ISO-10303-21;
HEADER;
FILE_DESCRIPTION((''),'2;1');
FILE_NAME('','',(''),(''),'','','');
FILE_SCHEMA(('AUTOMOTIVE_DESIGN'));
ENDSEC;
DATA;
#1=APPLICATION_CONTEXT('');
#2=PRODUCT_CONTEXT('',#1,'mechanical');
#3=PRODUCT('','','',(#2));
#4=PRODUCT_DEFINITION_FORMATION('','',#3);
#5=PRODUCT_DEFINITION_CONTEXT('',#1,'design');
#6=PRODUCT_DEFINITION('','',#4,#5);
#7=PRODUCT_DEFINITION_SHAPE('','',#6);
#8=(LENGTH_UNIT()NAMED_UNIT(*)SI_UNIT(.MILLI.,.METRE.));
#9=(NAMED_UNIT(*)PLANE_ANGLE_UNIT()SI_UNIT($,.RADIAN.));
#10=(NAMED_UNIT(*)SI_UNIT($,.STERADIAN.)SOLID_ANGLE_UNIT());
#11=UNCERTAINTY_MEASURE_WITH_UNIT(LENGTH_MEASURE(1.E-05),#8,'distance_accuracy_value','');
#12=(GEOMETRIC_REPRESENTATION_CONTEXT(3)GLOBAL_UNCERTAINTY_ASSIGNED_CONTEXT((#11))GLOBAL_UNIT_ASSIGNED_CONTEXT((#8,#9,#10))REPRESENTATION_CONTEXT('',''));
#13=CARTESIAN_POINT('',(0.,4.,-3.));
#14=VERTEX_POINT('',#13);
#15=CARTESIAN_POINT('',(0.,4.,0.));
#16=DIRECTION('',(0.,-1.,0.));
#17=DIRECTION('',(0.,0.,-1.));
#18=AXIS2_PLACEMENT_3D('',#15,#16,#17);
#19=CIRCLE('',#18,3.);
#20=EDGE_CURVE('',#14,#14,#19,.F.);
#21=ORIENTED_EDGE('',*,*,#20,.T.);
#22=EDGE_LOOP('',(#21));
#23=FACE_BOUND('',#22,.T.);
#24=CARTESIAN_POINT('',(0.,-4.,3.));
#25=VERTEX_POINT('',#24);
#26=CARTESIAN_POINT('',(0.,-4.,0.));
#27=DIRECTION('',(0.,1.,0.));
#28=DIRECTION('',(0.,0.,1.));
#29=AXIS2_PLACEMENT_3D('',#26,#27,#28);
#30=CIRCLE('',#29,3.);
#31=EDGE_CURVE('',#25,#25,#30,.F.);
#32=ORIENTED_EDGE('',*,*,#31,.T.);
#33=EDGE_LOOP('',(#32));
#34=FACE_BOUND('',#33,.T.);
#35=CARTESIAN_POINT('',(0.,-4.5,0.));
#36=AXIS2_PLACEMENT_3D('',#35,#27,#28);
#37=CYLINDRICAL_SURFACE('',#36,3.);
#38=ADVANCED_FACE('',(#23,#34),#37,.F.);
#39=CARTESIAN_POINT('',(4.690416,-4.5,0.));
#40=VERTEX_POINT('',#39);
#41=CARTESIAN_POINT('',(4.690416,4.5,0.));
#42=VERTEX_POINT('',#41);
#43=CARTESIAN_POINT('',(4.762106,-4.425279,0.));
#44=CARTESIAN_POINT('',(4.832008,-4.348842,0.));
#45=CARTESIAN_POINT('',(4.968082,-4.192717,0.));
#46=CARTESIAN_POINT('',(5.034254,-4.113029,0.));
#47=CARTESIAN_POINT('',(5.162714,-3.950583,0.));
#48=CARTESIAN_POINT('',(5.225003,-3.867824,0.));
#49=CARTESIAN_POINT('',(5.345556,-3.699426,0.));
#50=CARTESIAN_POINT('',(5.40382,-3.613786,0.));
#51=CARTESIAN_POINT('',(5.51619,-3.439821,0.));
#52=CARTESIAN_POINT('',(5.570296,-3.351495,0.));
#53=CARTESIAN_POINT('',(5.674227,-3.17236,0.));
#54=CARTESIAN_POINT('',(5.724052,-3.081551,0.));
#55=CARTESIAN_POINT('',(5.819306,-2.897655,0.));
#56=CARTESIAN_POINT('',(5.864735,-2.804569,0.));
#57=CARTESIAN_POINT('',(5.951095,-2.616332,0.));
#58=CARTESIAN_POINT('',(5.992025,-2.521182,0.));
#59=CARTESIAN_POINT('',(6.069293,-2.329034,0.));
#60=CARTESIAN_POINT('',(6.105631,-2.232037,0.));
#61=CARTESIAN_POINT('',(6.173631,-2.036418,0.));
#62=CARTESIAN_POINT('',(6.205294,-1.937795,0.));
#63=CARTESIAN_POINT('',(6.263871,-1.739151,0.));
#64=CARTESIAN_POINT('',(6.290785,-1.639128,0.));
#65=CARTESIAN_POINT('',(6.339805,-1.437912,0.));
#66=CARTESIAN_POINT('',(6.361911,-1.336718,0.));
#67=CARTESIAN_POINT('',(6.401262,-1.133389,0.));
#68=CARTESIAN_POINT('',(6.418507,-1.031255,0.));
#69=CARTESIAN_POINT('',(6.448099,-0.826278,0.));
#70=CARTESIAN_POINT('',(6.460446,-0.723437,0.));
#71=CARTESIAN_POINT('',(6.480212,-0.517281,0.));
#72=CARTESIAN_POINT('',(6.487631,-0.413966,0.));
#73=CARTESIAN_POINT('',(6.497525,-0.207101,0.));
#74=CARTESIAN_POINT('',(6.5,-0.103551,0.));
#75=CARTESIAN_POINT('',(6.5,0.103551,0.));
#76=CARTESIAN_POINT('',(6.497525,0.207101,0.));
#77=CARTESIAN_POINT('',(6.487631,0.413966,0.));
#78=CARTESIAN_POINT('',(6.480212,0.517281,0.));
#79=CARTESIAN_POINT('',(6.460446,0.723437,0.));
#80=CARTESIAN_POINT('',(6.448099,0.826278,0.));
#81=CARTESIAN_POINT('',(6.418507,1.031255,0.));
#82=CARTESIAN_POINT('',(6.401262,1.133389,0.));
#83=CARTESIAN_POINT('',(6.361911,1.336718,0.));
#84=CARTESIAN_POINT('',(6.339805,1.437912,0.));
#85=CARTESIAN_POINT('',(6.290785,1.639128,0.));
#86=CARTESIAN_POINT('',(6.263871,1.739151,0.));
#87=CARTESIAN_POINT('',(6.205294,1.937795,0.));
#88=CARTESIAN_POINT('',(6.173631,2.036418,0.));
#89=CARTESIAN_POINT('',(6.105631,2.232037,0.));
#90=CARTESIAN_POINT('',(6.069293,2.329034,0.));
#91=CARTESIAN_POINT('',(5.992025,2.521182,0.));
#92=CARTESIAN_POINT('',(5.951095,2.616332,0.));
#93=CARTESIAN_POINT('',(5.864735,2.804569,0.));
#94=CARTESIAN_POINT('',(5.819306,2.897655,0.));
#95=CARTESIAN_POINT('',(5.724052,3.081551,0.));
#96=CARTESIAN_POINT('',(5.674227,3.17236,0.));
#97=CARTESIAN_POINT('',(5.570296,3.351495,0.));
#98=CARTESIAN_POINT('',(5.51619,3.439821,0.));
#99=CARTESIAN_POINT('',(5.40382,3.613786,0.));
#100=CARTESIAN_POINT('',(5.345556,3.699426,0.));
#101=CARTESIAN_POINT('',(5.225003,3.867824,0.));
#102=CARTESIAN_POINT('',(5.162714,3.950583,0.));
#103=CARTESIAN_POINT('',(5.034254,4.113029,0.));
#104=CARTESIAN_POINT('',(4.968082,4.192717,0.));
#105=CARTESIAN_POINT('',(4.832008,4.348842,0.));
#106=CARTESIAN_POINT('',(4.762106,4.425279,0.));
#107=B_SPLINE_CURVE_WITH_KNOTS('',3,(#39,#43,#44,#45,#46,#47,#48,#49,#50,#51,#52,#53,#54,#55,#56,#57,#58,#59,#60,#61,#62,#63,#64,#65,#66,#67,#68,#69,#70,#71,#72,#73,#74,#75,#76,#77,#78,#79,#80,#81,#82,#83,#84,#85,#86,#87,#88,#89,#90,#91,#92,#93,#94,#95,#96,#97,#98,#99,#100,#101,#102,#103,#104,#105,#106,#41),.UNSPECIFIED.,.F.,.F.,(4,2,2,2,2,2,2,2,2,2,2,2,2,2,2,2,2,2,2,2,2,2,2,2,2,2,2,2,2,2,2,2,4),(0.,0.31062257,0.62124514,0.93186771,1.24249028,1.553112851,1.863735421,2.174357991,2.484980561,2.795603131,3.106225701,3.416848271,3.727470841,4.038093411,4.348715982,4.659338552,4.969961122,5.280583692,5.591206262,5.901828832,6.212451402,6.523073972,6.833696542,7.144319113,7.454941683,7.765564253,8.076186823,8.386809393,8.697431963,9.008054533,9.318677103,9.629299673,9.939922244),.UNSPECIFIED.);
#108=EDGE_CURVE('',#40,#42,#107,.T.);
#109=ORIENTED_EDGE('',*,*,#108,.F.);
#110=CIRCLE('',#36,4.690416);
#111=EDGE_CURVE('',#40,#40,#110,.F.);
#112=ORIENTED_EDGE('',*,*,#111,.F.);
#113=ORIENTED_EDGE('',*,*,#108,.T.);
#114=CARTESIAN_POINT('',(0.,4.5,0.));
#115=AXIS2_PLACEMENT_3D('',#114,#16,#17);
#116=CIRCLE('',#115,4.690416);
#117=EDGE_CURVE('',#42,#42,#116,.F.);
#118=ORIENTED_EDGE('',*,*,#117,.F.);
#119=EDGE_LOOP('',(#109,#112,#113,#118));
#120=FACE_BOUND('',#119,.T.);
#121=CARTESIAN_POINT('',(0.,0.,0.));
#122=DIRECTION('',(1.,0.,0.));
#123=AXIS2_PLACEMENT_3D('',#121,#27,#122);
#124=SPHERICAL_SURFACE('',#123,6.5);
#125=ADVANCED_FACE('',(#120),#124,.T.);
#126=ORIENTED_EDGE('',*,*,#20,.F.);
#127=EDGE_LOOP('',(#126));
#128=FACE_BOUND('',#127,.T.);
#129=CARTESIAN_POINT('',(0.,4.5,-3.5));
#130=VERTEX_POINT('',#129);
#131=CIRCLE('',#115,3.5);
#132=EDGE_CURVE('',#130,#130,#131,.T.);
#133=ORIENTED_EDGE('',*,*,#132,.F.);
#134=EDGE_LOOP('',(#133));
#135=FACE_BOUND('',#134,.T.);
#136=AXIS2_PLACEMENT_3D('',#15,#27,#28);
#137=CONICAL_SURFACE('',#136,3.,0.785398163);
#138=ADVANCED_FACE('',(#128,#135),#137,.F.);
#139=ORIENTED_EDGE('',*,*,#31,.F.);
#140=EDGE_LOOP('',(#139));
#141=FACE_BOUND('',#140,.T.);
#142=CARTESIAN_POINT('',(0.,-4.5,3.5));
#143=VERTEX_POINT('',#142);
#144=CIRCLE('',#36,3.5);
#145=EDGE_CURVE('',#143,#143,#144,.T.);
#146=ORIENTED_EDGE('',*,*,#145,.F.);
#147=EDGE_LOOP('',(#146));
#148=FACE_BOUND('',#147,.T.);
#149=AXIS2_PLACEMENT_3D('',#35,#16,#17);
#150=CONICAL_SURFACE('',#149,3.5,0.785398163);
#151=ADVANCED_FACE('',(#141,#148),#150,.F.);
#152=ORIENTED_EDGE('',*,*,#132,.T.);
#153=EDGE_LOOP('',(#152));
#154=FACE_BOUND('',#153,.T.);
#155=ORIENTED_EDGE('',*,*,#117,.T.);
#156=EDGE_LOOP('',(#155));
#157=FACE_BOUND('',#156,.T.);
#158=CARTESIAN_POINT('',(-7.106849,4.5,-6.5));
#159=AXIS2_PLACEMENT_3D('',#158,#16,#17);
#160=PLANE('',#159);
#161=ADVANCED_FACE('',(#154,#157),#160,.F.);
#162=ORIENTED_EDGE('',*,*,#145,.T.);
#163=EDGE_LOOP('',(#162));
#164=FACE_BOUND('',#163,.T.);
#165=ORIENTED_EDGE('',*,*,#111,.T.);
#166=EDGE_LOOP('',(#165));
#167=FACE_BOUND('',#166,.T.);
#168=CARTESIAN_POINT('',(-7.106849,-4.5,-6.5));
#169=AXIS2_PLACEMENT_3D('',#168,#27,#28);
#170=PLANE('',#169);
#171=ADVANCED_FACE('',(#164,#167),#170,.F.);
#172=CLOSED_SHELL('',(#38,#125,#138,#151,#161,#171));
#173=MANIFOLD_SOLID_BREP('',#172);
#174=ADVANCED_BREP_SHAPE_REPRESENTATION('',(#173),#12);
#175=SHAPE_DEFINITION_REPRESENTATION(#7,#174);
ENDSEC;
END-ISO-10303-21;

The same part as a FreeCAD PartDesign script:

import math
import FreeCAD as App
import Part
import Sketcher

V = App.Vector


def edges_at(feature, points):
    """Names of the edges that pass closest to the given points."""
    edges = feature.Shape.Edges
    near = lambda p: min(range(len(edges)), key=lambda i: edges[i].distToShape(Part.Vertex(*p))[0])
    return sorted({f"Edge{near(p) + 1}" for p in points})


def add_polygon(sketch, points):
    """Adds a closed chain of lines whose ends are joined by coincident constraints."""
    first, n = sketch.GeometryCount, len(points)
    for a, b in zip(points, points[1:] + points[:1]):
        sketch.addGeometry(Part.LineSegment(App.Vector(*a, 0), App.Vector(*b, 0)), False)
    for i in range(n):
        sketch.addConstraint(Sketcher.Constraint("Coincident", first + i, 2, first + (i + 1) % n, 1))

doc = App.newDocument("Part")
params = doc.addObject("Spreadsheet::Sheet", "Params")
for row, (alias, value) in enumerate([
    ("sketch1_radius", "6.5 mm"),
    ("revolution_angle", "360 deg"),
    ("sketch3_diameter", "6 mm"),
    ("chamfer_size", "0.5 mm"),
], start=1):
    params.set(f"A{row}", alias)
    params.set(f"B{row}", "=" + value)
    params.setAlias(f"B{row}", alias)

body = doc.addObject("PartDesign::Body", "Body")

sketch1 = doc.addObject("Sketcher::SketchObject", "Sketch")
body.addObject(sketch1)
sketch1.AttachmentSupport = (doc.XY_Plane, [""])
sketch1.MapMode = "FlatFace"
sketch1.addGeometry([
    Part.LineSegment(V(0, -6, 0), V(0, 6, 0)),
    Part.ArcOfCircle(Part.Circle(V(0, 0, 0), V(0, 0, 1), 6), math.radians(90), math.radians(270)),
], False)
sketch1.addConstraint([
    Sketcher.Constraint("Coincident", 0, 1, 1, 2),
    Sketcher.Constraint("Coincident", 1, 1, 0, 2),
    Sketcher.Constraint("Vertical", 0),
    Sketcher.Constraint("Coincident", 1, 3, -1, 1),
    Sketcher.Constraint("PointOnObject", 0, 1, -2),
    Sketcher.Constraint("Radius", 1, 6.5),
])
sketch1.setExpression("Constraints[5]", "Params.sketch1_radius")
revolution = doc.addObject("PartDesign::Revolution", "Revolution")
body.addObject(revolution)
revolution.Profile = sketch1
revolution.ReferenceAxis = (sketch1, ["V_Axis"])
revolution.setExpression("Angle", "Params.revolution_angle")

sketch2 = doc.addObject("Sketcher::SketchObject", "Sketch001")
body.addObject(sketch2)
sketch2.AttachmentSupport = (doc.XY_Plane, [""])
sketch2.MapMode = "FlatFace"
add_polygon(sketch2, [(-7.1, 6.9), (-7.1, 4.5), (7.5, 4.5), (7.5, 6.9)])
add_polygon(sketch2, [(-7.1, -4.5), (-7.1, -7.1), (7.5, -7.1), (7.5, -4.5)])
sketch2.addConstraint([
    Sketcher.Constraint("Vertical", 0),
    Sketcher.Constraint("Horizontal", 1),
    Sketcher.Constraint("Vertical", 2),
    Sketcher.Constraint("Horizontal", 3),
    Sketcher.Constraint("Vertical", 4),
    Sketcher.Constraint("Horizontal", 5),
    Sketcher.Constraint("Vertical", 6),
    Sketcher.Constraint("Horizontal", 7),
    Sketcher.Constraint("Symmetric", 1, 2, 6, 2, -1),
    Sketcher.Constraint("Vertical", 3, 2, 4, 2),
    Sketcher.Constraint("DistanceY", 6, 2, 1, 2, 9.0),
    Sketcher.Constraint("DistanceX", 1, 1, 1, 2, 14.577161),
    Sketcher.Constraint("DistanceY", 4, 2, 3, 2, 13.954799),
    Sketcher.Constraint("DistanceY", 0, 2, 0, 1, 2.369686),
    Sketcher.Constraint("DistanceX", 0, 2, -1, 1, 7.106849),
])
pocket1 = doc.addObject("PartDesign::Pocket", "Pocket")
body.addObject(pocket1)
pocket1.Profile = sketch2
pocket1.Type = "ThroughAll"
pocket1.Midplane = True

sketch3 = doc.addObject("Sketcher::SketchObject", "Sketch002")
body.addObject(sketch3)
sketch3.AttachmentSupport = (doc.XZ_Plane, [""])
sketch3.MapMode = "FlatFace"
sketch3.AttachmentOffset = App.Placement(V(0, 0, -4.5), App.Rotation())
sketch3.addGeometry(Part.Circle(V(0, 0, 0), V(0, 0, 1), 3), False)
sketch3.addConstraint([
    Sketcher.Constraint("Coincident", 0, 3, -1, 1),
    Sketcher.Constraint("Diameter", 0, 6.0),
])
sketch3.setExpression("Constraints[1]", "Params.sketch3_diameter")
pocket2 = doc.addObject("PartDesign::Pocket", "Pocket001")
body.addObject(pocket2)
pocket2.Profile = sketch3
pocket2.Type = "ThroughAll"
pocket2.Reversed = True
doc.recompute()

chamfer = doc.addObject("PartDesign::Chamfer", "Chamfer")
body.addObject(chamfer)
chamfer.Base = (pocket2, edges_at(pocket2, [(0, -4.5, -3), (0, 4.5, -3)]))
chamfer.setExpression("Size", "Params.chamfer_size")

doc.recompute()
